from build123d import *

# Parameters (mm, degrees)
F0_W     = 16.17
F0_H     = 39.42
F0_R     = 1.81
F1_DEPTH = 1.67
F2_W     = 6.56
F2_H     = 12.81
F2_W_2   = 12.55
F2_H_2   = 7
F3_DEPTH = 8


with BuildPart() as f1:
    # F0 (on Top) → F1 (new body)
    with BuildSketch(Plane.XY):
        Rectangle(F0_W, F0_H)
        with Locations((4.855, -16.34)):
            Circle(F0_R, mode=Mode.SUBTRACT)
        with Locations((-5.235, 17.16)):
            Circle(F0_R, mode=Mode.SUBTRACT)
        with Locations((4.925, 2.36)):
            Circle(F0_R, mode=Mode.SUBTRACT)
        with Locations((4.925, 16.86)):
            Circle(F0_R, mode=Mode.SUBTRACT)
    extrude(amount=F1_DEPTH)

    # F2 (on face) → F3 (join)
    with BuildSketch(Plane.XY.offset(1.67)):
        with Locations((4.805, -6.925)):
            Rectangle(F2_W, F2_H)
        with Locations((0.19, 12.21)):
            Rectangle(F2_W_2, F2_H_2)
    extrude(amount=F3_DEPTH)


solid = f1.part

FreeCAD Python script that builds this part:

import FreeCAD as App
import Part
import Sketcher

V = App.Vector


def add_polygon(sketch, points):
    """Adds a closed chain of lines whose ends are joined by coincident constraints."""
    first, n = sketch.GeometryCount, len(points)
    for a, b in zip(points, points[1:] + points[:1]):
        sketch.addGeometry(Part.LineSegment(App.Vector(*a, 0), App.Vector(*b, 0)), False)
    for i in range(n):
        sketch.addConstraint(Sketcher.Constraint("Coincident", first + i, 2, first + (i + 1) % n, 1))

doc = App.newDocument("Part")
body = doc.addObject("PartDesign::Body", "Body")

# Sketch on XY plane
sketch1 = body.newObject("Sketcher::SketchObject", "Sketch")
sketch1.AttachmentSupport = (doc.getObject("XY_Plane"), [""])
sketch1.MapMode = "FlatFace"
add_polygon(sketch1, [(-8.1, 19.7), (-8.1, -19.7), (8.1, -19.7), (8.1, 19.7)])  # lines 0-3
sketch1.addGeometry(Part.Circle(V(4.9, -16.3, 0), V(0, 0, 1), 1.8), False)  # 4
sketch1.addGeometry(Part.Circle(V(-5.2, 17.2, 0), V(0, 0, 1), 1.8), False)  # 5
sketch1.addGeometry(Part.Circle(V(4.9, 2.4, 0), V(0, 0, 1), 1.8), False)  # 6
sketch1.addGeometry(Part.Circle(V(4.9, 16.9, 0), V(0, 0, 1), 1.8), False)  # 7
sketch1.addConstraint([
    Sketcher.Constraint("Vertical", 0),
    Sketcher.Constraint("Horizontal", 1),
    Sketcher.Constraint("Vertical", 2),
    Sketcher.Constraint("Horizontal", 3),
    Sketcher.Constraint("Equal", 4, 5),
    Sketcher.Constraint("Equal", 5, 6),
    Sketcher.Constraint("Equal", 6, 7),
    Sketcher.Constraint("Symmetric", 0, 2, 2, 2, -1, 1),
    Sketcher.Constraint("Vertical", 6, 3, 7, 3),
    Sketcher.Constraint("Diameter", 4, 3.62),
    Sketcher.Constraint("DistanceX", 1, 1, 1, 2, 16.17),
    Sketcher.Constraint("DistanceY", 0, 2, 0, 1, 39.42),
    Sketcher.Constraint("DistanceY", 4, 3, 5, 3, 33.5),
    Sketcher.Constraint("DistanceY", 6, 3, 5, 3, 14.8),
    Sketcher.Constraint("DistanceY", 7, 3, 5, 3, 0.3),
    Sketcher.Constraint("DistanceY", 4, 3, -1, 1, 16.34),
    Sketcher.Constraint("DistanceX", 5, 3, 4, 3, 10.09),
    Sketcher.Constraint("DistanceX", 5, 3, 6, 3, 10.16),
    Sketcher.Constraint("DistanceX", 0, 2, 4, 3, 12.94),
])
pad1 = body.newObject("PartDesign::Pad", "Pad")
pad1.Profile = sketch1
pad1.Length = 1.67

# Sketch on XY plane
sketch2 = body.newObject("Sketcher::SketchObject", "Sketch001")
sketch2.AttachmentSupport = (doc.getObject("XY_Plane"), [""])
sketch2.MapMode = "FlatFace"
sketch2.AttachmentOffset = App.Placement(V(0, 0, 1.67), App.Rotation())
add_polygon(sketch2, [(2, -1), (2, -13), (8, -13), (8, -1)])  # lines 0-3
add_polygon(sketch2, [(-6, 16), (-6, 9), (6, 9), (6, 16)])  # lines 4-7
sketch2.addConstraint([
    Sketcher.Constraint("Vertical", 0),
    Sketcher.Constraint("Horizontal", 1),
    Sketcher.Constraint("Vertical", 2),
    Sketcher.Constraint("Horizontal", 3),
    Sketcher.Constraint("Vertical", 4),
    Sketcher.Constraint("Horizontal", 5),
    Sketcher.Constraint("Vertical", 6),
    Sketcher.Constraint("Horizontal", 7),
    Sketcher.Constraint("DistanceY", 4, 2, 4, 1, 7.0),
    Sketcher.Constraint("DistanceX", 1, 1, 1, 2, 6.56),
    Sketcher.Constraint("DistanceX", 5, 1, 5, 2, 12.55),
    Sketcher.Constraint("DistanceY", 0, 2, 0, 1, 12.81),
    Sketcher.Constraint("DistanceY", 0, 2, -1, 1, 13.33),
    Sketcher.Constraint("DistanceY", -1, 1, 4, 2, 8.71),
    Sketcher.Constraint("DistanceX", 4, 2, 3, 2, 7.61),
    Sketcher.Constraint("DistanceX", -1, 1, 0, 2, 1.525),
])
pad2 = body.newObject("PartDesign::Pad", "Pad001")
pad2.Profile = sketch2
pad2.Length = 8

doc.recompute()
